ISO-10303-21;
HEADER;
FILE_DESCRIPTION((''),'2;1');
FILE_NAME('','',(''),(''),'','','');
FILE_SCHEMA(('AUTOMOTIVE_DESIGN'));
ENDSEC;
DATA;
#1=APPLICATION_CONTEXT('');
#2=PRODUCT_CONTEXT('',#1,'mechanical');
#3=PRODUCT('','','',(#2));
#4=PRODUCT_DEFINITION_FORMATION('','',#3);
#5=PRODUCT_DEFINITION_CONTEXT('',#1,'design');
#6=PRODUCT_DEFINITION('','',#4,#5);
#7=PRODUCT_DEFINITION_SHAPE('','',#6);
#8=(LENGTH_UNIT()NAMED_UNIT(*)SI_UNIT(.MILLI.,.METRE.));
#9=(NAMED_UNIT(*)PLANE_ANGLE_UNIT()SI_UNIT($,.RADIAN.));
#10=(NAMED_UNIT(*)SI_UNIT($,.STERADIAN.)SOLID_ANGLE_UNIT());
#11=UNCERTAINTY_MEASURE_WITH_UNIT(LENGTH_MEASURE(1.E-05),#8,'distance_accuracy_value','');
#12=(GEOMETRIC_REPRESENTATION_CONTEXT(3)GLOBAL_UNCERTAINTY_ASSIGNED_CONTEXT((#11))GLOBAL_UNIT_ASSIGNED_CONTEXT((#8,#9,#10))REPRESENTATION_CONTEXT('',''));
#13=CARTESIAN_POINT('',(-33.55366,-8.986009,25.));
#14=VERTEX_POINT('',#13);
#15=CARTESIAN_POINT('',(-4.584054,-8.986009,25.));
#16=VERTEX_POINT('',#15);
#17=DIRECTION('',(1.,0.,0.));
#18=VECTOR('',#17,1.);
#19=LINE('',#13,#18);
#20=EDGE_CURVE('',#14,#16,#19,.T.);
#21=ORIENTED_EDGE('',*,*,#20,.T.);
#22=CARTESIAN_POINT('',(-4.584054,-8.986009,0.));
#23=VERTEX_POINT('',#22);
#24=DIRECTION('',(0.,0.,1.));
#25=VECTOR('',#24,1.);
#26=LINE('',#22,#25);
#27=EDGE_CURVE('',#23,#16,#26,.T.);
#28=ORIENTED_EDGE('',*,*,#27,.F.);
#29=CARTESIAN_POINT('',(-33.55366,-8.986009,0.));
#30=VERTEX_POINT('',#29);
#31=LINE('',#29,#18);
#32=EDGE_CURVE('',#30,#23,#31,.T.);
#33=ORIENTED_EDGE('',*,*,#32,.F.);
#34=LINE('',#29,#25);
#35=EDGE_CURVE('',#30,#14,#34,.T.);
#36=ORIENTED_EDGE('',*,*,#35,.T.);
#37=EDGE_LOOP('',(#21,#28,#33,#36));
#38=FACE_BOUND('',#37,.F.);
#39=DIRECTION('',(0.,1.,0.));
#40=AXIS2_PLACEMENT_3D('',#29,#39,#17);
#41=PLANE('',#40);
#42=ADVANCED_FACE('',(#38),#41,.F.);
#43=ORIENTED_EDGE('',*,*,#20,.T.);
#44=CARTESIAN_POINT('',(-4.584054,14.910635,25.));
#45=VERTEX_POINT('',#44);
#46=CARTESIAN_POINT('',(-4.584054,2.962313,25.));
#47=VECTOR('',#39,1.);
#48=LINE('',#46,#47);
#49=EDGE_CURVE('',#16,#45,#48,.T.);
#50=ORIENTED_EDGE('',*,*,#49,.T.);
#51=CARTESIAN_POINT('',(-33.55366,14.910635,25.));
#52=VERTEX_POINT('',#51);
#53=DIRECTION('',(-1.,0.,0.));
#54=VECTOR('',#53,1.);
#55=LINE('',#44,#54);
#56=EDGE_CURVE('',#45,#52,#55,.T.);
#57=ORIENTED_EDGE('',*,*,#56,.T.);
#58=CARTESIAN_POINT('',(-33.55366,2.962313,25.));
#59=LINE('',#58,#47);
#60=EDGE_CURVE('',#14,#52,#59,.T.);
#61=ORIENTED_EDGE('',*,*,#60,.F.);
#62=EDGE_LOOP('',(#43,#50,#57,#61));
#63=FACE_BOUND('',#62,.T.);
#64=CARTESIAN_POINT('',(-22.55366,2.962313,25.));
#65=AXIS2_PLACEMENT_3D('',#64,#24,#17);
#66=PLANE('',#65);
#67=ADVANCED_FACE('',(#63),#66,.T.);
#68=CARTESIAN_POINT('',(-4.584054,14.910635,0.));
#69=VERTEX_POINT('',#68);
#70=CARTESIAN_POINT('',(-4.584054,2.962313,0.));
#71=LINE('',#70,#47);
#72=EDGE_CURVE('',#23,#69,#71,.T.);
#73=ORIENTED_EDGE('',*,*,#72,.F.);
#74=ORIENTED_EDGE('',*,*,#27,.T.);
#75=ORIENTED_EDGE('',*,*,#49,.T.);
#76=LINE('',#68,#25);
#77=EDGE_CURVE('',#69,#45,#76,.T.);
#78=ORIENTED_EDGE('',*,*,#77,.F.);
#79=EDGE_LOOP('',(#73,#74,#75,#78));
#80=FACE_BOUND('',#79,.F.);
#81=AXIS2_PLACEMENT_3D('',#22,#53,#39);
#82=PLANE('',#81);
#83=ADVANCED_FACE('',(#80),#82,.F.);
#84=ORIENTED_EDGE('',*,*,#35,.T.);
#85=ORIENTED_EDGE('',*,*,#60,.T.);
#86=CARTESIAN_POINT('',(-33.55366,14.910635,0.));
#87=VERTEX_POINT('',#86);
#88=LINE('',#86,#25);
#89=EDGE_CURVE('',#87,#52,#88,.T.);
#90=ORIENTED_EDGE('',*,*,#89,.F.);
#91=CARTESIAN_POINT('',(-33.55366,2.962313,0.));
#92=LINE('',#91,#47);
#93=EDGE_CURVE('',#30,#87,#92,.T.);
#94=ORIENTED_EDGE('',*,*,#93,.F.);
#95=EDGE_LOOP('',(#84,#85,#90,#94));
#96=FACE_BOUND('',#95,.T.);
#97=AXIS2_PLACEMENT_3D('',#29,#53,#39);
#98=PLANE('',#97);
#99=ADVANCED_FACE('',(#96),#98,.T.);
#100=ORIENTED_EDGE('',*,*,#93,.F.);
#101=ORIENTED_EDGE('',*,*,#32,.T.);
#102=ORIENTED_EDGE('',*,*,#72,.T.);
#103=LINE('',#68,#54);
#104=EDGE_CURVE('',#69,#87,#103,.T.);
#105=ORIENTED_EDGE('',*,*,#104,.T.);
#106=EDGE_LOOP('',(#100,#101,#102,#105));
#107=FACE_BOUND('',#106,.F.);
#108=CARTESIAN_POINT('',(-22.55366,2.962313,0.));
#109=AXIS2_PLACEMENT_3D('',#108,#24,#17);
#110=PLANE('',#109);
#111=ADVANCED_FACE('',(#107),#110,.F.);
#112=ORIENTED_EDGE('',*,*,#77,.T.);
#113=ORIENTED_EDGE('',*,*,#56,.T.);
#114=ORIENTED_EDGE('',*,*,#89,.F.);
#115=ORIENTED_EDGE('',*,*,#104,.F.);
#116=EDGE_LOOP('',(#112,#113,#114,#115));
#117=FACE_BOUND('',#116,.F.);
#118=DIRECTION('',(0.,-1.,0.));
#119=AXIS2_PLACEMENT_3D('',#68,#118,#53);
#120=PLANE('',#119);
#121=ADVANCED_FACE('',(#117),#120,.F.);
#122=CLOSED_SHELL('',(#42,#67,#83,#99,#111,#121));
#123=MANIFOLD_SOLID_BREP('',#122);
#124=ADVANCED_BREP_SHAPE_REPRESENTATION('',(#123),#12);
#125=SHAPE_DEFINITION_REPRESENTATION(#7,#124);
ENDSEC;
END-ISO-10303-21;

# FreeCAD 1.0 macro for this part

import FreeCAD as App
import Part
import Sketcher

V = App.Vector
Q = App.Units.Quantity

doc = App.newDocument("Part")
body = doc.addObject("PartDesign::Body", "Body")

sketch1 = doc.addObject("Sketcher::SketchObject", "Sketch")
body.addObject(sketch1)
sketch1.AttachmentSupport = (doc.XY_Plane, [""])
sketch1.MapMode = "FlatFace"
sketch1.addGeometry(Part.LineSegment(V(-34, 15, 0), V(-34, -9, 0)), False)
sketch1.addGeometry(Part.LineSegment(V(-34, -9, 0), V(-5, -9, 0)), False)
sketch1.addGeometry(Part.LineSegment(V(-5, -9, 0), V(-5, 15, 0)), False)
sketch1.addGeometry(Part.LineSegment(V(-5, 15, 0), V(-34, 15, 0)), False)
sketch1.addConstraint(Sketcher.Constraint("Coincident", 0, 2, 1, 1))
sketch1.addConstraint(Sketcher.Constraint("Coincident", 1, 2, 2, 1))
sketch1.addConstraint(Sketcher.Constraint("Coincident", 2, 2, 3, 1))
sketch1.addConstraint(Sketcher.Constraint("Coincident", 3, 2, 0, 1))
sketch1.addConstraint(Sketcher.Constraint("Vertical", 0))
sketch1.addConstraint(Sketcher.Constraint("Horizontal", 1))
sketch1.addConstraint(Sketcher.Constraint("Vertical", 2))
sketch1.addConstraint(Sketcher.Constraint("Horizontal", 3))
sketch1.addConstraint(Sketcher.Constraint("DistanceX", 1, 1, 1, 2, Q("28.969606 mm")))
sketch1.addConstraint(Sketcher.Constraint("DistanceY", 0, 2, 0, 1, Q("23.896645 mm")))
sketch1.addConstraint(Sketcher.Constraint("DistanceX", 0, 2, -1, 1, Q("33.55366 mm")))
sketch1.addConstraint(Sketcher.Constraint("DistanceY", 0, 2, -1, 1, Q("8.986009 mm")))
pad1 = doc.addObject("PartDesign::Pad", "Pad")
body.addObject(pad1)
pad1.Profile = sketch1
pad1.Length = 25

doc.recompute()
